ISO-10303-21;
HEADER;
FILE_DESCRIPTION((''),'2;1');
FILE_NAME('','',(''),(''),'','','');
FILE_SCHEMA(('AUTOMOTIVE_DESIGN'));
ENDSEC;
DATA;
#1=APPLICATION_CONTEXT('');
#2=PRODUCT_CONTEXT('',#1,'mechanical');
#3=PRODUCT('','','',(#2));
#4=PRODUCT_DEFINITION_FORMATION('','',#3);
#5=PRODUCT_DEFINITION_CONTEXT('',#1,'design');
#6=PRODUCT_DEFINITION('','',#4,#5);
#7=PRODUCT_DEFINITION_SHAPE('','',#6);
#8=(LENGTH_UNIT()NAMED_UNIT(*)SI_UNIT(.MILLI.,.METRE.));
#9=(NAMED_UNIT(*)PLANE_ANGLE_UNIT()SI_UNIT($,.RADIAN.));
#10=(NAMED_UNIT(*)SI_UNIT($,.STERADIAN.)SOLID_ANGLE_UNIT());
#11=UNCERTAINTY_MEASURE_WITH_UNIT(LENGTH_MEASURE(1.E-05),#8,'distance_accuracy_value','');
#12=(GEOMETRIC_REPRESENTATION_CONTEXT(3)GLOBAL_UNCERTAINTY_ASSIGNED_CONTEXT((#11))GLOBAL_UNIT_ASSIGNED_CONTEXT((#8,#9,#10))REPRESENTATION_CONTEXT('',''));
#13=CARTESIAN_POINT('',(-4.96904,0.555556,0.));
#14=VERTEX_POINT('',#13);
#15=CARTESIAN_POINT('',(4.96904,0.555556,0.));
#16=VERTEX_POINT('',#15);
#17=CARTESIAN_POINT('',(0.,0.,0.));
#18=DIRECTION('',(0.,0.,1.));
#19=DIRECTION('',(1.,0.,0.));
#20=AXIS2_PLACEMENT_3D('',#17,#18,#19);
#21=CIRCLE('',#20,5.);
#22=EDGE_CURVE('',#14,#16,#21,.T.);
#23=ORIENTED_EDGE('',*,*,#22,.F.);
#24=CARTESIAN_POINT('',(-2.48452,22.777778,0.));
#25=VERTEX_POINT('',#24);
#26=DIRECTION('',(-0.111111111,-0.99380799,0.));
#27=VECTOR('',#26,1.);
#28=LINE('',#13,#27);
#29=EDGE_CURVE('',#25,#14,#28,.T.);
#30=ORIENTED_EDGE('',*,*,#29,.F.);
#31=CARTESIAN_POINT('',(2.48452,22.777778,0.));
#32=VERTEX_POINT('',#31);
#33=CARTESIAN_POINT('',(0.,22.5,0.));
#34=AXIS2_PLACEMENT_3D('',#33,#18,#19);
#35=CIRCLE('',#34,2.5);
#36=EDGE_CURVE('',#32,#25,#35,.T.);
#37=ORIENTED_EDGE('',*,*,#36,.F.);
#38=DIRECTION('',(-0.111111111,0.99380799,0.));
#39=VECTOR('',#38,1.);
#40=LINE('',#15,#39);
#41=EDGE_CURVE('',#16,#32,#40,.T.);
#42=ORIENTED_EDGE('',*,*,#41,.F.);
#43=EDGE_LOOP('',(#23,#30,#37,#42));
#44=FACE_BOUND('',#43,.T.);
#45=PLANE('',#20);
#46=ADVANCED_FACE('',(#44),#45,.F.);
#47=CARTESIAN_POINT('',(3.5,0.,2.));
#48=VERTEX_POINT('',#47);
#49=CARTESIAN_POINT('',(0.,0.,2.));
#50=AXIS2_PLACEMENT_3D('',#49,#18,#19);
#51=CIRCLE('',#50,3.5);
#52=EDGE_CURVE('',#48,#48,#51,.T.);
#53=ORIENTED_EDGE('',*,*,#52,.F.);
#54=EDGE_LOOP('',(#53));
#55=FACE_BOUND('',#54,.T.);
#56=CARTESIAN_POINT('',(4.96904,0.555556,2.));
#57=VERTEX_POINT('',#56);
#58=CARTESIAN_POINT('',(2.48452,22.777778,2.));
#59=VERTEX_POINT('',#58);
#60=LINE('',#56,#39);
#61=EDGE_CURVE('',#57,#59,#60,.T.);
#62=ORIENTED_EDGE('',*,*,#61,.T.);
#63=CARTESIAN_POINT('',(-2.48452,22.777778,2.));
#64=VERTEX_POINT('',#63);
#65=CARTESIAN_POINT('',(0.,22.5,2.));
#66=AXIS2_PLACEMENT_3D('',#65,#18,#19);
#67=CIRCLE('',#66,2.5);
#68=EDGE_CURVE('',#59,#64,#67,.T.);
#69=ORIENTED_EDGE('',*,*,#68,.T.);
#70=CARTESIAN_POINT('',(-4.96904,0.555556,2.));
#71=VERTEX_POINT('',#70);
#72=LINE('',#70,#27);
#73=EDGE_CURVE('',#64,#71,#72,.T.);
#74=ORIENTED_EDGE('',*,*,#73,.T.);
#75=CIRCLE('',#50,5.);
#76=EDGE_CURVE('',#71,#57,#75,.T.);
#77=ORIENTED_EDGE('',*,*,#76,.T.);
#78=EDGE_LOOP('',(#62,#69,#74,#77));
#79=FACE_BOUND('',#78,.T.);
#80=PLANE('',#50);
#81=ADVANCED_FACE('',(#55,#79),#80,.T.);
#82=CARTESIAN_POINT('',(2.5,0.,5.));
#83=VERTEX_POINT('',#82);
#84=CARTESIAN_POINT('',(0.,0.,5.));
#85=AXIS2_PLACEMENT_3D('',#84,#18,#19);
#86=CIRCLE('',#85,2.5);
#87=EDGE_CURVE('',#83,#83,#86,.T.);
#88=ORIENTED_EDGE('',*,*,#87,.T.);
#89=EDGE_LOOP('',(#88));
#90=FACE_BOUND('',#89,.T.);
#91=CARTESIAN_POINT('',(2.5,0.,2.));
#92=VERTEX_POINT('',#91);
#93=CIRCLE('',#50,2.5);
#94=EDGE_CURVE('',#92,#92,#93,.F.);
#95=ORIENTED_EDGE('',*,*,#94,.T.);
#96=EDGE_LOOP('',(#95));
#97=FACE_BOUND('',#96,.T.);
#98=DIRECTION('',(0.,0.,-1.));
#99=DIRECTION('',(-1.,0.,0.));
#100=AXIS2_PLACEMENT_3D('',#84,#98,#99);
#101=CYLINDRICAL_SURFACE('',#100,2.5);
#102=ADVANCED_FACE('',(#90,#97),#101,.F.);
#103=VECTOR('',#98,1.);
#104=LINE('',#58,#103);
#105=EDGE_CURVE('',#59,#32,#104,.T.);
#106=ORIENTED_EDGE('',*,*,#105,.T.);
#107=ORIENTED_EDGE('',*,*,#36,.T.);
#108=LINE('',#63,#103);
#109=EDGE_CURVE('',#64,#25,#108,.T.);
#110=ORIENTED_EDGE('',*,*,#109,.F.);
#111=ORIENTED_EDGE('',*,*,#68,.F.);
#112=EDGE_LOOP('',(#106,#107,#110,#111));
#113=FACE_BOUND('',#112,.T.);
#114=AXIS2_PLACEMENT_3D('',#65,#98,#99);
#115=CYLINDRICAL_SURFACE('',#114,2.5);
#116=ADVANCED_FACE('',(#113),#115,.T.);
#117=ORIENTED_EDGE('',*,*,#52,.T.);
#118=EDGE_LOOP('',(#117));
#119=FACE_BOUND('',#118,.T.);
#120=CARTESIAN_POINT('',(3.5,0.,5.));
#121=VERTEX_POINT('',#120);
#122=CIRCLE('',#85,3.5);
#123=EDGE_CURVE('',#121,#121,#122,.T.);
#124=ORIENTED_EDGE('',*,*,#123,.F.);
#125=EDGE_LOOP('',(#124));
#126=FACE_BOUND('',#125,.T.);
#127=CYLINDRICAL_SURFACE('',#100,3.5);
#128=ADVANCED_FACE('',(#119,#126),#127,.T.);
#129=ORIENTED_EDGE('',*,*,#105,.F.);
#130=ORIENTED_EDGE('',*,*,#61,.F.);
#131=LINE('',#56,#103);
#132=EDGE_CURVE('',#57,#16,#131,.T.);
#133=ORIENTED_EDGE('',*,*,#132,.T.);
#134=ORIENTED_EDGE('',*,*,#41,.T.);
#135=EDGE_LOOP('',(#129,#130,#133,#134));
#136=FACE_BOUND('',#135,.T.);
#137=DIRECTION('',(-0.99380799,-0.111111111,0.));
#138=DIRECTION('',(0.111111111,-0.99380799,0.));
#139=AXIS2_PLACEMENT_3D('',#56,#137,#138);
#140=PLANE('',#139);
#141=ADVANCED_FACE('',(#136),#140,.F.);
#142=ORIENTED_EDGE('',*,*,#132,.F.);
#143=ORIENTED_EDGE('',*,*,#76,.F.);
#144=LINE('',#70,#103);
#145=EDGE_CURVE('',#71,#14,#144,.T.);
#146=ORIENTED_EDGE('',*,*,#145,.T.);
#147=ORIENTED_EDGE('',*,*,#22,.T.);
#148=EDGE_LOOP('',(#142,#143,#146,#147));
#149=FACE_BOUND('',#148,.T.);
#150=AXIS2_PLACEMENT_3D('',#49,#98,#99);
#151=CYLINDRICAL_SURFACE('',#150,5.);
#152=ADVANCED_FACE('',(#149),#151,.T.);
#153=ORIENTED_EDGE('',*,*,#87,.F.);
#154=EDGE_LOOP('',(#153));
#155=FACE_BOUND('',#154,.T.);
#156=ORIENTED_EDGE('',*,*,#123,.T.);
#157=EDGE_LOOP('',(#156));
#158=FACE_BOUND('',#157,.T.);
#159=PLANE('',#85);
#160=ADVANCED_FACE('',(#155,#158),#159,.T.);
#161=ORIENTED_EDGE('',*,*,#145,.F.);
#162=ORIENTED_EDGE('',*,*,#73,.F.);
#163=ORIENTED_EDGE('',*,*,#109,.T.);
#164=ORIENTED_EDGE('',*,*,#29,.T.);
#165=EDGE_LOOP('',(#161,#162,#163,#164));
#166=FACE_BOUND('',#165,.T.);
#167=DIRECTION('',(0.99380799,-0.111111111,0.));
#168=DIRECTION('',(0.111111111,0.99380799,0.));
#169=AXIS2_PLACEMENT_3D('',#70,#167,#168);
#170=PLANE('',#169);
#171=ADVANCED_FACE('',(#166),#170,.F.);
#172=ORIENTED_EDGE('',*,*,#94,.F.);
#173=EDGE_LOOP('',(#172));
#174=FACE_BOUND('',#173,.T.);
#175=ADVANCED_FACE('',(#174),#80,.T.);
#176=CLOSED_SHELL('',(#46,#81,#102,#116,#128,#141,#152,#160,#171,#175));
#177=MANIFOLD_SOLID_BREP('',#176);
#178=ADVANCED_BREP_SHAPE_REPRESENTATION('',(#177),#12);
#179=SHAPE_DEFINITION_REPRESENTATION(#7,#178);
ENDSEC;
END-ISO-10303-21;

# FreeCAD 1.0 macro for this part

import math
import FreeCAD as App
import Part
import Sketcher
from FreeCAD import Vector
Q = App.Units.Quantity

doc = App.newDocument("Part")
body = doc.addObject("PartDesign::Body", "Body")

# Sketch on XY plane
sketch1 = doc.addObject("Sketcher::SketchObject", "Sketch")
body.addObject(sketch1)
sketch1.AttachmentSupport = (doc.XY_Plane, [""])
sketch1.MapMode = "FlatFace"
sketch1.addGeometry(Part.LineSegment(Vector(-2.5, 22.8, 0), Vector(-5, 0.6, 0)), False)
sketch1.addGeometry(Part.ArcOfCircle(Part.Circle(Vector(0, 0, 0), Vector(0, 0, 1), 5), math.radians(174), math.radians(366)), False)
sketch1.addGeometry(Part.LineSegment(Vector(5, 0.6, 0), Vector(2.5, 22.8, 0)), False)
sketch1.addGeometry(Part.ArcOfCircle(Part.Circle(Vector(0, 22.5, 0), Vector(0, 0, 1), 2.5), math.radians(6), math.radians(174)), False)
sketch1.addConstraint(Sketcher.Constraint("Tangent", 0, 2, 1, 1))
sketch1.addConstraint(Sketcher.Constraint("Tangent", 1, 2, 2, 1))
sketch1.addConstraint(Sketcher.Constraint("Tangent", 2, 2, 3, 1))
sketch1.addConstraint(Sketcher.Constraint("Tangent", 3, 2, 0, 1))
sketch1.addConstraint(Sketcher.Constraint("Coincident", 1, 3, -1, 1))
sketch1.addConstraint(Sketcher.Constraint("PointOnObject", 3, 3, -2))
sketch1.addConstraint(Sketcher.Constraint("Radius", 1, Q("5 mm")))
sketch1.addConstraint(Sketcher.Constraint("Radius", 3, Q("2.5 mm")))
sketch1.addConstraint(Sketcher.Constraint("DistanceY", -1, 1, 3, 3, Q("22.5 mm")))
pad1 = doc.addObject("PartDesign::Pad", "Pad")
body.addObject(pad1)
pad1.Profile = sketch1
pad1.Length = 2

# Sketch on XY plane
sketch2 = doc.addObject("Sketcher::SketchObject", "Sketch001")
body.addObject(sketch2)
sketch2.AttachmentSupport = (doc.XY_Plane, [""])
sketch2.MapMode = "FlatFace"
sketch2.AttachmentOffset = App.Placement(Vector(0, 0, 2), App.Rotation())
sketch2.addGeometry(Part.Circle(Vector(0, 0, 0), Vector(0, 0, 1), 3.5), False)
sketch2.addGeometry(Part.Circle(Vector(0, 0, 0), Vector(0, 0, 1), 2.5), False)
sketch2.addConstraint(Sketcher.Constraint("Coincident", 0, 3, -1, 1))
sketch2.addConstraint(Sketcher.Constraint("Coincident", 1, 3, -1, 1))
sketch2.addConstraint(Sketcher.Constraint("Diameter", 0, Q("7 mm")))
sketch2.addConstraint(Sketcher.Constraint("Diameter", 1, Q("5 mm")))
pad2 = doc.addObject("PartDesign::Pad", "Pad001")
body.addObject(pad2)
pad2.Profile = sketch2
pad2.Length = 3

doc.recompute()
